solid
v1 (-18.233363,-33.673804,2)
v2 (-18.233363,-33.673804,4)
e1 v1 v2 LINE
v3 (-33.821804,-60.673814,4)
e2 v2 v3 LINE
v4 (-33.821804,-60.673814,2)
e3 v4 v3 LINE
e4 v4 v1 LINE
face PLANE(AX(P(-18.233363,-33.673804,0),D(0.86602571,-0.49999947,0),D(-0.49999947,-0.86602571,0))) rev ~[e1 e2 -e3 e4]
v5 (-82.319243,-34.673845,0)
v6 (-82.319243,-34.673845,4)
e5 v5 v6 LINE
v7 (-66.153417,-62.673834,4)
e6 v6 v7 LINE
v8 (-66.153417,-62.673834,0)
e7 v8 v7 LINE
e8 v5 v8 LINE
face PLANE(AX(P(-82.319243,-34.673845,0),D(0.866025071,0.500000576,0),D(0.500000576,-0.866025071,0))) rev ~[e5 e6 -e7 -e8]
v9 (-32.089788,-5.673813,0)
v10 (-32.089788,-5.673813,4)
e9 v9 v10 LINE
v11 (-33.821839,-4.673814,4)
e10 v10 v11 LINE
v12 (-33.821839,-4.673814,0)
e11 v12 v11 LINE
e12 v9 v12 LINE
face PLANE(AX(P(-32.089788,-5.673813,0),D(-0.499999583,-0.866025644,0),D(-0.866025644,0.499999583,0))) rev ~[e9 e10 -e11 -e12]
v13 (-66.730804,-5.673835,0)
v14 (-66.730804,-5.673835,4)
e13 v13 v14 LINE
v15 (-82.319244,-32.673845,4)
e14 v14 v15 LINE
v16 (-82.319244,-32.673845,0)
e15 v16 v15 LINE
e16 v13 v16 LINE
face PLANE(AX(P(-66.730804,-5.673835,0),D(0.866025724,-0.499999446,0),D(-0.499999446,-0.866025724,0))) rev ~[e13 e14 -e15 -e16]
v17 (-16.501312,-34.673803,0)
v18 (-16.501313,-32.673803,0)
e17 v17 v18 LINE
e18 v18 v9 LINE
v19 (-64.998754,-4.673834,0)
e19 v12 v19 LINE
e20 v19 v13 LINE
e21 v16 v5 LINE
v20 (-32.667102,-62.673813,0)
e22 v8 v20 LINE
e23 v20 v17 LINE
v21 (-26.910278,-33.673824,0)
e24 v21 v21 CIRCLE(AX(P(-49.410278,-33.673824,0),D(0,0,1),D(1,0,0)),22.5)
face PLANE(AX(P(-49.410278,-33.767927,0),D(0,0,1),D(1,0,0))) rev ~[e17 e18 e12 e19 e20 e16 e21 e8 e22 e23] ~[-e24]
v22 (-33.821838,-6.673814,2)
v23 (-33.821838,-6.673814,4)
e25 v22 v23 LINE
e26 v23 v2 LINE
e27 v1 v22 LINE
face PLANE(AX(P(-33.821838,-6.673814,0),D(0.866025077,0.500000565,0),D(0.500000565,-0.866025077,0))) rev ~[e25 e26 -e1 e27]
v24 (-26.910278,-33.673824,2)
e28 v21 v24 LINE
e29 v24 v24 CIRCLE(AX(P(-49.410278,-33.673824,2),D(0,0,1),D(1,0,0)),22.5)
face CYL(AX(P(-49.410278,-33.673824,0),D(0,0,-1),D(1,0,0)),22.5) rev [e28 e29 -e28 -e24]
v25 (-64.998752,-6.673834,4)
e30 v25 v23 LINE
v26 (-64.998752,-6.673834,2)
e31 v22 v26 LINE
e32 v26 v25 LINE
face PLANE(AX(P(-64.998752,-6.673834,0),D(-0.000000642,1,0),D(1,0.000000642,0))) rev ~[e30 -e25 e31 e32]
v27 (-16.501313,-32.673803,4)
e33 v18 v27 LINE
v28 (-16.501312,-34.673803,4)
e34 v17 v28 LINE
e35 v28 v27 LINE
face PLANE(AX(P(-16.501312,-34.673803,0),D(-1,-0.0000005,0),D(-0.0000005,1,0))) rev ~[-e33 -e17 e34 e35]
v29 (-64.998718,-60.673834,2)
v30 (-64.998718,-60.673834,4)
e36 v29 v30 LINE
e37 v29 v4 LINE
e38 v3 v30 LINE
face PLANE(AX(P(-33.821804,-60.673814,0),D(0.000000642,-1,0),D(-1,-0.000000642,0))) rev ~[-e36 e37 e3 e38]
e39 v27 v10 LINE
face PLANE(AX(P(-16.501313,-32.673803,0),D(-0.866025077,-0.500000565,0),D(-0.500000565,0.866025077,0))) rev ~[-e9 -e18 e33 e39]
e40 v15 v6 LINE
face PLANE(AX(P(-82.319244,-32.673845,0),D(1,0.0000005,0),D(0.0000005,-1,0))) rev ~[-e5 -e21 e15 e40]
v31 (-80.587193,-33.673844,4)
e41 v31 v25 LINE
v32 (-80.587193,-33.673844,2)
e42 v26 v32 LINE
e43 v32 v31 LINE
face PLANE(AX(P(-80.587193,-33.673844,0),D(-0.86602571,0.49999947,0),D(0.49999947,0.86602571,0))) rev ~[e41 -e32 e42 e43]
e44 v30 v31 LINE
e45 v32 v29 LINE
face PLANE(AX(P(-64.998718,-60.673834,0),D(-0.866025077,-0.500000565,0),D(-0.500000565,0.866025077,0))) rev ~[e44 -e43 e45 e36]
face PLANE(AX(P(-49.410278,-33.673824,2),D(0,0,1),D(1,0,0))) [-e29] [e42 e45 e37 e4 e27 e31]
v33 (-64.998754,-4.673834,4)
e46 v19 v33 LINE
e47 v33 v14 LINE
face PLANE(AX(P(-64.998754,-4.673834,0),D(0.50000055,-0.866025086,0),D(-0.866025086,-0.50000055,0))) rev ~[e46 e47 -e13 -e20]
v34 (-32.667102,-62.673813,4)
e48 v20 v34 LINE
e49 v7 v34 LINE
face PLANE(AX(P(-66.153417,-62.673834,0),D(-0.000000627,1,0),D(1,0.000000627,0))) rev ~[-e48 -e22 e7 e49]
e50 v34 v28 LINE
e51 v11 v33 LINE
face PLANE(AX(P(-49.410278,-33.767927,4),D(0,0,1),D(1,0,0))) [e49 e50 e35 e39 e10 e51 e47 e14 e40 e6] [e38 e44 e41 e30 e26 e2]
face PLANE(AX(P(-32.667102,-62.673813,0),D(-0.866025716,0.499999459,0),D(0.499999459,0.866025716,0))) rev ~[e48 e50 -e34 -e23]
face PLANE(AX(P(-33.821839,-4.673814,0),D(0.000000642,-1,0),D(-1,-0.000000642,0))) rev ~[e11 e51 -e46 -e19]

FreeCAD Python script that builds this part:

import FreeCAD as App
import Part
import Sketcher
Q = App.Units.Quantity

doc = App.newDocument("Part")
body = doc.addObject("PartDesign::Body", "Body")

# Sketch on XY plane
sketch1 = doc.addObject("Sketcher::SketchObject", "Sketch")
body.addObject(sketch1)
sketch1.AttachmentSupport = (doc.XY_Plane, [""])
sketch1.MapMode = "FlatFace"
sketch1.addGeometry([
    Part.LineSegment(App.Vector(-65, -7, 0), App.Vector(-81, -34, 0)),  # 0
    Part.LineSegment(App.Vector(-81, -34, 0), App.Vector(-65, -61, 0)),  # 1
    Part.LineSegment(App.Vector(-65, -61, 0), App.Vector(-34, -61, 0)),  # 2
    Part.LineSegment(App.Vector(-34, -61, 0), App.Vector(-18, -34, 0)),  # 3
    Part.LineSegment(App.Vector(-18, -34, 0), App.Vector(-34, -7, 0)),  # 4
    Part.LineSegment(App.Vector(-34, -7, 0), App.Vector(-65, -7, 0)),  # 5
    Part.Circle(App.Vector(-49, -34, 0), App.Vector(0, 0, 1), 22),  # 6
], False)
sketch1.addConstraint([
    Sketcher.Constraint("Coincident", 0, 2, 1, 1),
    Sketcher.Constraint("Coincident", 1, 2, 2, 1),
    Sketcher.Constraint("Coincident", 2, 2, 3, 1),
    Sketcher.Constraint("Coincident", 3, 2, 4, 1),
    Sketcher.Constraint("Coincident", 4, 2, 5, 1),
    Sketcher.Constraint("Coincident", 5, 2, 0, 1),
    Sketcher.Constraint("Parallel", 0, 3),
    Sketcher.Constraint("Parallel", 1, 4),
    Sketcher.Constraint("Parallel", 2, 5),
    Sketcher.Constraint("Equal", 0, 1),
    Sketcher.Constraint("Equal", 1, 2),
    Sketcher.Constraint("Equal", 2, 3),
    Sketcher.Constraint("Diameter", 6, Q("45 mm")),
    Sketcher.Constraint("DistanceY", 2, 2, 4, 2, Q("54 mm")),
    Sketcher.Constraint("DistanceX", 5, 2, -1, 1, Q("64.998752 mm")),
    Sketcher.Constraint("DistanceX", 1, 2, 6, 3, Q("15.58844 mm")),
    Sketcher.Constraint("DistanceY", 1, 2, 6, 3, Q("27.00001 mm")),
    Sketcher.Constraint("DistanceY", 1, 2, 0, 2, Q("26.99999 mm")),
    Sketcher.Constraint("DistanceY", 2, 2, 6, 3, Q("26.99999 mm")),
    Sketcher.Constraint("DistanceX", 0, 2, 2, 2, Q("46.765389 mm")),
    Sketcher.Constraint("DistanceY", 6, 3, -1, 1, Q("33.673824 mm")),
])
pad1 = doc.addObject("PartDesign::Pad", "Pad")
body.addObject(pad1)
pad1.Profile = sketch1
pad1.Length = 2

# Sketch on XY plane
sketch2 = doc.addObject("Sketcher::SketchObject", "Sketch001")
body.addObject(sketch2)
sketch2.AttachmentSupport = (doc.XY_Plane, [""])
sketch2.MapMode = "FlatFace"
sketch2.addGeometry([
    Part.LineSegment(App.Vector(-66.2, -62.7, 0), App.Vector(-32.7, -62.7, 0)),  # 0
    Part.LineSegment(App.Vector(-32.7, -62.7, 0), App.Vector(-16.5, -34.7, 0)),  # 1
    Part.LineSegment(App.Vector(-16.5, -34.7, 0), App.Vector(-16.5, -32.7, 0)),  # 2
    Part.LineSegment(App.Vector(-16.5, -32.7, 0), App.Vector(-32.1, -5.7, 0)),  # 3
    Part.LineSegment(App.Vector(-32.1, -5.7, 0), App.Vector(-33.8, -4.7, 0)),  # 4
    Part.LineSegment(App.Vector(-33.8, -4.7, 0), App.Vector(-65, -4.7, 0)),  # 5
    Part.LineSegment(App.Vector(-65, -4.7, 0), App.Vector(-66.7, -5.7, 0)),  # 6
    Part.LineSegment(App.Vector(-66.7, -5.7, 0), App.Vector(-82.3, -32.7, 0)),  # 7
    Part.LineSegment(App.Vector(-82.3, -32.7, 0), App.Vector(-82.3, -34.7, 0)),  # 8
    Part.LineSegment(App.Vector(-82.3, -34.7, 0), App.Vector(-66.2, -62.7, 0)),  # 9
    Part.LineSegment(App.Vector(-33.8, -60.7, 0), App.Vector(-65, -60.7, 0)),  # 10
    Part.LineSegment(App.Vector(-65, -60.7, 0), App.Vector(-80.6, -33.7, 0)),  # 11
    Part.LineSegment(App.Vector(-80.6, -33.7, 0), App.Vector(-65, -6.7, 0)),  # 12
    Part.LineSegment(App.Vector(-65, -6.7, 0), App.Vector(-33.8, -6.7, 0)),  # 13
    Part.LineSegment(App.Vector(-33.8, -6.7, 0), App.Vector(-18.2, -33.7, 0)),  # 14
    Part.LineSegment(App.Vector(-18.2, -33.7, 0), App.Vector(-33.8, -60.7, 0)),  # 15
], False)
sketch2.addConstraint([
    Sketcher.Constraint("Coincident", 0, 2, 1, 1),
    Sketcher.Constraint("Coincident", 1, 2, 2, 1),
    Sketcher.Constraint("Coincident", 2, 2, 3, 1),
    Sketcher.Constraint("Coincident", 3, 2, 4, 1),
    Sketcher.Constraint("Coincident", 4, 2, 5, 1),
    Sketcher.Constraint("Coincident", 5, 2, 6, 1),
    Sketcher.Constraint("Coincident", 6, 2, 7, 1),
    Sketcher.Constraint("Coincident", 7, 2, 8, 1),
    Sketcher.Constraint("Coincident", 8, 2, 9, 1),
    Sketcher.Constraint("Coincident", 9, 2, 0, 1),
    Sketcher.Constraint("Coincident", 10, 2, 11, 1),
    Sketcher.Constraint("Coincident", 11, 2, 12, 1),
    Sketcher.Constraint("Coincident", 12, 2, 13, 1),
    Sketcher.Constraint("Coincident", 13, 2, 14, 1),
    Sketcher.Constraint("Coincident", 14, 2, 15, 1),
    Sketcher.Constraint("Coincident", 15, 2, 10, 1),
    Sketcher.Constraint("Vertical", 2),
    Sketcher.Constraint("Vertical", 8),
    Sketcher.Constraint("Perpendicular", 1, 4),
    Sketcher.Constraint("Parallel", 0, 5),
    Sketcher.Constraint("Perpendicular", 3, 6),
    Sketcher.Constraint("Perpendicular", 4, 7),
    Sketcher.Constraint("Perpendicular", 6, 9),
    Sketcher.Constraint("Parallel", 5, 10),
    Sketcher.Constraint("Parallel", 9, 11),
    Sketcher.Constraint("Parallel", 7, 12),
    Sketcher.Constraint("Parallel", 10, 13),
    Sketcher.Constraint("Parallel", 11, 14),
    Sketcher.Constraint("Parallel", 12, 15),
    Sketcher.Constraint("Vertical", 4, 2, 13, 2),
    Sketcher.Constraint("Equal", 2, 8),
    Sketcher.Constraint("Equal", 3, 5),
    Sketcher.Constraint("Equal", 4, 6),
    Sketcher.Constraint("Equal", 5, 7),
    Sketcher.Constraint("Equal", 1, 9),
    Sketcher.Constraint("Equal", 7, 10),
    Sketcher.Constraint("Equal", 10, 11),
    Sketcher.Constraint("Equal", 11, 12),
    Sketcher.Constraint("Equal", 12, 13),
    Sketcher.Constraint("DistanceY", 2, 1, 2, 2, Q("2 mm")),
    Sketcher.Constraint("Distance", 4, Q("2 mm")),
    Sketcher.Constraint("DistanceY", 0, 2, 3, 2, Q("57 mm")),
    Sketcher.Constraint("DistanceY", 3, 2, 4, 2, Q("0.999999 mm")),
    Sketcher.Constraint("DistanceY", 6, 2, 5, 2, Q("1.000001 mm")),
    Sketcher.Constraint("DistanceY", 9, 2, 10, 2, Q("2 mm")),
    Sketcher.Constraint("DistanceY", 11, 2, 7, 2, Q("0.999999 mm")),
    Sketcher.Constraint("DistanceX", 1, 2, -1, 1, Q("16.501312 mm")),
    Sketcher.Constraint("DistanceY", 0, 2, -1, 1, Q("62.673813 mm")),
])
pad2 = doc.addObject("PartDesign::Pad", "Pad001")
body.addObject(pad2)
pad2.Profile = sketch2
pad2.Length = 4

doc.recompute()
